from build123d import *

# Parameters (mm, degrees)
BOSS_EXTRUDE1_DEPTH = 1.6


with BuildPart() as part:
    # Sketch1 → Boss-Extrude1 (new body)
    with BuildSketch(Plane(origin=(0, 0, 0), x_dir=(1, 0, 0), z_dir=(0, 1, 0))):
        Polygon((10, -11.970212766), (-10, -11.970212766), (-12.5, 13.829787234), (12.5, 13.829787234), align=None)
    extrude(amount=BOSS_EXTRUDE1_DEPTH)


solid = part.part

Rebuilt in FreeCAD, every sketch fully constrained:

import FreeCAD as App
import Part
import Sketcher
Q = App.Units.Quantity


def add_polygon(sketch, points):
    """Adds a closed chain of lines whose ends are joined by coincident constraints."""
    first, n = sketch.GeometryCount, len(points)
    for a, b in zip(points, points[1:] + points[:1]):
        sketch.addGeometry(Part.LineSegment(App.Vector(*a, 0), App.Vector(*b, 0)), False)
    for i in range(n):
        sketch.addConstraint(Sketcher.Constraint("Coincident", first + i, 2, first + (i + 1) % n, 1))

doc = App.newDocument("Part")
params = doc.addObject("Spreadsheet::Sheet", "Params")
for row, (alias, value) in enumerate([
    ("sketch1_width", "20 mm"),
    ("sketch1_width2", "25 mm"),
    ("pad1_length", "1.6 mm"),
], start=1):
    params.set(f"A{row}", alias)
    params.set(f"B{row}", "=" + value)
    params.setAlias(f"B{row}", alias)

body = doc.addObject("PartDesign::Body", "Body")

# Sketch on XZ plane
sketch1 = body.newObject("Sketcher::SketchObject", "Sketch")
sketch1.AttachmentSupport = (doc.getObject("XZ_Plane"), [""])
sketch1.MapMode = "FlatFace"
add_polygon(sketch1, [(-10, 12), (10, 12), (12, -14), (-12, -14)])  # lines 0-3
sketch1.addConstraint([
    Sketcher.Constraint("Horizontal", 0),
    Sketcher.Constraint("Horizontal", 2),
    Sketcher.Constraint("Equal", 1, 3),
    Sketcher.Constraint("DistanceX", 0, 1, 0, 2, Q("20 mm")),
    Sketcher.Constraint("DistanceX", 2, 2, 2, 1, Q("25 mm")),
    Sketcher.Constraint("DistanceX", -1, 1, 0, 2, Q("10 mm")),
    Sketcher.Constraint("DistanceY", 1, 2, 0, 2, Q("25.8 mm")),
    Sketcher.Constraint("DistanceY", -1, 1, 0, 2, Q("11.970213 mm")),
])
sketch1.setExpression("Constraints[7]", "Params.sketch1_width")
sketch1.setExpression("Constraints[8]", "Params.sketch1_width2")
pad1 = body.newObject("PartDesign::Pad", "Pad")
pad1.Profile = sketch1
pad1.setExpression("Length", "Params.pad1_length")
pad1.Reversed = True

doc.recompute()
